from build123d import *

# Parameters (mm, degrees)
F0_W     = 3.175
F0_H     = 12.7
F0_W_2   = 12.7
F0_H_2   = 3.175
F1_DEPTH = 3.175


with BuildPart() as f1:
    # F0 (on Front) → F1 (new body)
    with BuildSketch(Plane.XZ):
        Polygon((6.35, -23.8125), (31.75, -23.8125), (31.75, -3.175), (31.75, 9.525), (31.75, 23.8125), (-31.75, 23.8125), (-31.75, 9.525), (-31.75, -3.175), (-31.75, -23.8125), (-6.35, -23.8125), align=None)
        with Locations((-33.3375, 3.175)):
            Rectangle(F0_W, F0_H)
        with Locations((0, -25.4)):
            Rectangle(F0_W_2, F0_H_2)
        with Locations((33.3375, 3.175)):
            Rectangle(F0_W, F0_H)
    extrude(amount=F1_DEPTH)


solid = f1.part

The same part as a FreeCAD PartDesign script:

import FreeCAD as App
import Part
import Sketcher

V = App.Vector
Q = App.Units.Quantity

doc = App.newDocument("Part")
body = doc.addObject("PartDesign::Body", "Body")

# Sketch on XZ plane
sketch1 = body.newObject("Sketcher::SketchObject", "Sketch")
sketch1.AttachmentSupport = (doc.getObject("XZ_Plane"), [""])
sketch1.MapMode = "FlatFace"
sketch1.addGeometry(Part.LineSegment(V(31.8, -23.8, 0), V(31.8, -3.2, 0)), False)
sketch1.addGeometry(Part.LineSegment(V(31.8, -3.2, 0), V(34.9, -3.2, 0)), False)
sketch1.addGeometry(Part.LineSegment(V(34.9, -3.2, 0), V(34.9, 9.5, 0)), False)
sketch1.addGeometry(Part.LineSegment(V(34.9, 9.5, 0), V(31.8, 9.5, 0)), False)
sketch1.addGeometry(Part.LineSegment(V(31.8, 9.5, 0), V(31.8, 23.8, 0)), False)
sketch1.addGeometry(Part.LineSegment(V(31.8, 23.8, 0), V(-31.8, 23.8, 0)), False)
sketch1.addGeometry(Part.LineSegment(V(-31.8, 23.8, 0), V(-31.8, 9.5, 0)), False)
sketch1.addGeometry(Part.LineSegment(V(-31.8, 9.5, 0), V(-34.9, 9.5, 0)), False)
sketch1.addGeometry(Part.LineSegment(V(-34.9, 9.5, 0), V(-34.9, -3.2, 0)), False)
sketch1.addGeometry(Part.LineSegment(V(-34.9, -3.2, 0), V(-31.8, -3.2, 0)), False)
sketch1.addGeometry(Part.LineSegment(V(-31.8, -3.2, 0), V(-31.8, -23.8, 0)), False)
sketch1.addGeometry(Part.LineSegment(V(-31.8, -23.8, 0), V(-6.3, -23.8, 0)), False)
sketch1.addGeometry(Part.LineSegment(V(-6.3, -23.8, 0), V(-6.3, -27, 0)), False)
sketch1.addGeometry(Part.LineSegment(V(-6.3, -27, 0), V(6.3, -27, 0)), False)
sketch1.addGeometry(Part.LineSegment(V(6.3, -27, 0), V(6.3, -23.8, 0)), False)
sketch1.addGeometry(Part.LineSegment(V(6.3, -23.8, 0), V(31.8, -23.8, 0)), False)
sketch1.addConstraint(Sketcher.Constraint("Coincident", 0, 2, 1, 1))
sketch1.addConstraint(Sketcher.Constraint("Coincident", 1, 2, 2, 1))
sketch1.addConstraint(Sketcher.Constraint("Coincident", 2, 2, 3, 1))
sketch1.addConstraint(Sketcher.Constraint("Coincident", 3, 2, 4, 1))
sketch1.addConstraint(Sketcher.Constraint("Coincident", 4, 2, 5, 1))
sketch1.addConstraint(Sketcher.Constraint("Coincident", 5, 2, 6, 1))
sketch1.addConstraint(Sketcher.Constraint("Coincident", 6, 2, 7, 1))
sketch1.addConstraint(Sketcher.Constraint("Coincident", 7, 2, 8, 1))
sketch1.addConstraint(Sketcher.Constraint("Coincident", 8, 2, 9, 1))
sketch1.addConstraint(Sketcher.Constraint("Coincident", 9, 2, 10, 1))
sketch1.addConstraint(Sketcher.Constraint("Coincident", 10, 2, 11, 1))
sketch1.addConstraint(Sketcher.Constraint("Coincident", 11, 2, 12, 1))
sketch1.addConstraint(Sketcher.Constraint("Coincident", 12, 2, 13, 1))
sketch1.addConstraint(Sketcher.Constraint("Coincident", 13, 2, 14, 1))
sketch1.addConstraint(Sketcher.Constraint("Coincident", 14, 2, 15, 1))
sketch1.addConstraint(Sketcher.Constraint("Coincident", 15, 2, 0, 1))
sketch1.addConstraint(Sketcher.Constraint("Vertical", 0))
sketch1.addConstraint(Sketcher.Constraint("Horizontal", 1))
sketch1.addConstraint(Sketcher.Constraint("Vertical", 2))
sketch1.addConstraint(Sketcher.Constraint("Horizontal", 3))
sketch1.addConstraint(Sketcher.Constraint("Vertical", 4))
sketch1.addConstraint(Sketcher.Constraint("Horizontal", 5))
sketch1.addConstraint(Sketcher.Constraint("Vertical", 6))
sketch1.addConstraint(Sketcher.Constraint("Horizontal", 7))
sketch1.addConstraint(Sketcher.Constraint("Vertical", 8))
sketch1.addConstraint(Sketcher.Constraint("Horizontal", 9))
sketch1.addConstraint(Sketcher.Constraint("Vertical", 10))
sketch1.addConstraint(Sketcher.Constraint("Horizontal", 11))
sketch1.addConstraint(Sketcher.Constraint("Vertical", 12))
sketch1.addConstraint(Sketcher.Constraint("Horizontal", 13))
sketch1.addConstraint(Sketcher.Constraint("Vertical", 14))
sketch1.addConstraint(Sketcher.Constraint("Horizontal", 15))
sketch1.addConstraint(Sketcher.Constraint("Symmetric", 4, 2, 10, 2, -1, 1))
sketch1.addConstraint(Sketcher.Constraint("Symmetric", 5, 2, 15, 2, -1, 1))
sketch1.addConstraint(Sketcher.Constraint("Symmetric", 3, 2, 6, 2, -2))
sketch1.addConstraint(Sketcher.Constraint("Symmetric", 1, 2, 8, 2, -2))
sketch1.addConstraint(Sketcher.Constraint("Equal", 11, 15))
sketch1.addConstraint(Sketcher.Constraint("Equal", 13, 2))
sketch1.addConstraint(Sketcher.Constraint("Equal", 9, 12))
sketch1.addConstraint(Sketcher.Constraint("DistanceX", 11, 1, 11, 2, Q("1 in")))
sketch1.addConstraint(Sketcher.Constraint("DistanceX", 5, 2, 5, 1, Q("2.5 in")))
sketch1.addConstraint(Sketcher.Constraint("DistanceX", 1, 1, 1, 2, Q("0.125 in")))
sketch1.addConstraint(Sketcher.Constraint("DistanceY", 0, 1, 0, 2, Q("0.8125 in")))
sketch1.addConstraint(Sketcher.Constraint("DistanceY", 4, 1, 4, 2, Q("0.5625 in")))
pad1 = body.newObject("PartDesign::Pad", "Pad")
pad1.Profile = sketch1
pad1.Length = Q("0.125 in")

doc.recompute()
